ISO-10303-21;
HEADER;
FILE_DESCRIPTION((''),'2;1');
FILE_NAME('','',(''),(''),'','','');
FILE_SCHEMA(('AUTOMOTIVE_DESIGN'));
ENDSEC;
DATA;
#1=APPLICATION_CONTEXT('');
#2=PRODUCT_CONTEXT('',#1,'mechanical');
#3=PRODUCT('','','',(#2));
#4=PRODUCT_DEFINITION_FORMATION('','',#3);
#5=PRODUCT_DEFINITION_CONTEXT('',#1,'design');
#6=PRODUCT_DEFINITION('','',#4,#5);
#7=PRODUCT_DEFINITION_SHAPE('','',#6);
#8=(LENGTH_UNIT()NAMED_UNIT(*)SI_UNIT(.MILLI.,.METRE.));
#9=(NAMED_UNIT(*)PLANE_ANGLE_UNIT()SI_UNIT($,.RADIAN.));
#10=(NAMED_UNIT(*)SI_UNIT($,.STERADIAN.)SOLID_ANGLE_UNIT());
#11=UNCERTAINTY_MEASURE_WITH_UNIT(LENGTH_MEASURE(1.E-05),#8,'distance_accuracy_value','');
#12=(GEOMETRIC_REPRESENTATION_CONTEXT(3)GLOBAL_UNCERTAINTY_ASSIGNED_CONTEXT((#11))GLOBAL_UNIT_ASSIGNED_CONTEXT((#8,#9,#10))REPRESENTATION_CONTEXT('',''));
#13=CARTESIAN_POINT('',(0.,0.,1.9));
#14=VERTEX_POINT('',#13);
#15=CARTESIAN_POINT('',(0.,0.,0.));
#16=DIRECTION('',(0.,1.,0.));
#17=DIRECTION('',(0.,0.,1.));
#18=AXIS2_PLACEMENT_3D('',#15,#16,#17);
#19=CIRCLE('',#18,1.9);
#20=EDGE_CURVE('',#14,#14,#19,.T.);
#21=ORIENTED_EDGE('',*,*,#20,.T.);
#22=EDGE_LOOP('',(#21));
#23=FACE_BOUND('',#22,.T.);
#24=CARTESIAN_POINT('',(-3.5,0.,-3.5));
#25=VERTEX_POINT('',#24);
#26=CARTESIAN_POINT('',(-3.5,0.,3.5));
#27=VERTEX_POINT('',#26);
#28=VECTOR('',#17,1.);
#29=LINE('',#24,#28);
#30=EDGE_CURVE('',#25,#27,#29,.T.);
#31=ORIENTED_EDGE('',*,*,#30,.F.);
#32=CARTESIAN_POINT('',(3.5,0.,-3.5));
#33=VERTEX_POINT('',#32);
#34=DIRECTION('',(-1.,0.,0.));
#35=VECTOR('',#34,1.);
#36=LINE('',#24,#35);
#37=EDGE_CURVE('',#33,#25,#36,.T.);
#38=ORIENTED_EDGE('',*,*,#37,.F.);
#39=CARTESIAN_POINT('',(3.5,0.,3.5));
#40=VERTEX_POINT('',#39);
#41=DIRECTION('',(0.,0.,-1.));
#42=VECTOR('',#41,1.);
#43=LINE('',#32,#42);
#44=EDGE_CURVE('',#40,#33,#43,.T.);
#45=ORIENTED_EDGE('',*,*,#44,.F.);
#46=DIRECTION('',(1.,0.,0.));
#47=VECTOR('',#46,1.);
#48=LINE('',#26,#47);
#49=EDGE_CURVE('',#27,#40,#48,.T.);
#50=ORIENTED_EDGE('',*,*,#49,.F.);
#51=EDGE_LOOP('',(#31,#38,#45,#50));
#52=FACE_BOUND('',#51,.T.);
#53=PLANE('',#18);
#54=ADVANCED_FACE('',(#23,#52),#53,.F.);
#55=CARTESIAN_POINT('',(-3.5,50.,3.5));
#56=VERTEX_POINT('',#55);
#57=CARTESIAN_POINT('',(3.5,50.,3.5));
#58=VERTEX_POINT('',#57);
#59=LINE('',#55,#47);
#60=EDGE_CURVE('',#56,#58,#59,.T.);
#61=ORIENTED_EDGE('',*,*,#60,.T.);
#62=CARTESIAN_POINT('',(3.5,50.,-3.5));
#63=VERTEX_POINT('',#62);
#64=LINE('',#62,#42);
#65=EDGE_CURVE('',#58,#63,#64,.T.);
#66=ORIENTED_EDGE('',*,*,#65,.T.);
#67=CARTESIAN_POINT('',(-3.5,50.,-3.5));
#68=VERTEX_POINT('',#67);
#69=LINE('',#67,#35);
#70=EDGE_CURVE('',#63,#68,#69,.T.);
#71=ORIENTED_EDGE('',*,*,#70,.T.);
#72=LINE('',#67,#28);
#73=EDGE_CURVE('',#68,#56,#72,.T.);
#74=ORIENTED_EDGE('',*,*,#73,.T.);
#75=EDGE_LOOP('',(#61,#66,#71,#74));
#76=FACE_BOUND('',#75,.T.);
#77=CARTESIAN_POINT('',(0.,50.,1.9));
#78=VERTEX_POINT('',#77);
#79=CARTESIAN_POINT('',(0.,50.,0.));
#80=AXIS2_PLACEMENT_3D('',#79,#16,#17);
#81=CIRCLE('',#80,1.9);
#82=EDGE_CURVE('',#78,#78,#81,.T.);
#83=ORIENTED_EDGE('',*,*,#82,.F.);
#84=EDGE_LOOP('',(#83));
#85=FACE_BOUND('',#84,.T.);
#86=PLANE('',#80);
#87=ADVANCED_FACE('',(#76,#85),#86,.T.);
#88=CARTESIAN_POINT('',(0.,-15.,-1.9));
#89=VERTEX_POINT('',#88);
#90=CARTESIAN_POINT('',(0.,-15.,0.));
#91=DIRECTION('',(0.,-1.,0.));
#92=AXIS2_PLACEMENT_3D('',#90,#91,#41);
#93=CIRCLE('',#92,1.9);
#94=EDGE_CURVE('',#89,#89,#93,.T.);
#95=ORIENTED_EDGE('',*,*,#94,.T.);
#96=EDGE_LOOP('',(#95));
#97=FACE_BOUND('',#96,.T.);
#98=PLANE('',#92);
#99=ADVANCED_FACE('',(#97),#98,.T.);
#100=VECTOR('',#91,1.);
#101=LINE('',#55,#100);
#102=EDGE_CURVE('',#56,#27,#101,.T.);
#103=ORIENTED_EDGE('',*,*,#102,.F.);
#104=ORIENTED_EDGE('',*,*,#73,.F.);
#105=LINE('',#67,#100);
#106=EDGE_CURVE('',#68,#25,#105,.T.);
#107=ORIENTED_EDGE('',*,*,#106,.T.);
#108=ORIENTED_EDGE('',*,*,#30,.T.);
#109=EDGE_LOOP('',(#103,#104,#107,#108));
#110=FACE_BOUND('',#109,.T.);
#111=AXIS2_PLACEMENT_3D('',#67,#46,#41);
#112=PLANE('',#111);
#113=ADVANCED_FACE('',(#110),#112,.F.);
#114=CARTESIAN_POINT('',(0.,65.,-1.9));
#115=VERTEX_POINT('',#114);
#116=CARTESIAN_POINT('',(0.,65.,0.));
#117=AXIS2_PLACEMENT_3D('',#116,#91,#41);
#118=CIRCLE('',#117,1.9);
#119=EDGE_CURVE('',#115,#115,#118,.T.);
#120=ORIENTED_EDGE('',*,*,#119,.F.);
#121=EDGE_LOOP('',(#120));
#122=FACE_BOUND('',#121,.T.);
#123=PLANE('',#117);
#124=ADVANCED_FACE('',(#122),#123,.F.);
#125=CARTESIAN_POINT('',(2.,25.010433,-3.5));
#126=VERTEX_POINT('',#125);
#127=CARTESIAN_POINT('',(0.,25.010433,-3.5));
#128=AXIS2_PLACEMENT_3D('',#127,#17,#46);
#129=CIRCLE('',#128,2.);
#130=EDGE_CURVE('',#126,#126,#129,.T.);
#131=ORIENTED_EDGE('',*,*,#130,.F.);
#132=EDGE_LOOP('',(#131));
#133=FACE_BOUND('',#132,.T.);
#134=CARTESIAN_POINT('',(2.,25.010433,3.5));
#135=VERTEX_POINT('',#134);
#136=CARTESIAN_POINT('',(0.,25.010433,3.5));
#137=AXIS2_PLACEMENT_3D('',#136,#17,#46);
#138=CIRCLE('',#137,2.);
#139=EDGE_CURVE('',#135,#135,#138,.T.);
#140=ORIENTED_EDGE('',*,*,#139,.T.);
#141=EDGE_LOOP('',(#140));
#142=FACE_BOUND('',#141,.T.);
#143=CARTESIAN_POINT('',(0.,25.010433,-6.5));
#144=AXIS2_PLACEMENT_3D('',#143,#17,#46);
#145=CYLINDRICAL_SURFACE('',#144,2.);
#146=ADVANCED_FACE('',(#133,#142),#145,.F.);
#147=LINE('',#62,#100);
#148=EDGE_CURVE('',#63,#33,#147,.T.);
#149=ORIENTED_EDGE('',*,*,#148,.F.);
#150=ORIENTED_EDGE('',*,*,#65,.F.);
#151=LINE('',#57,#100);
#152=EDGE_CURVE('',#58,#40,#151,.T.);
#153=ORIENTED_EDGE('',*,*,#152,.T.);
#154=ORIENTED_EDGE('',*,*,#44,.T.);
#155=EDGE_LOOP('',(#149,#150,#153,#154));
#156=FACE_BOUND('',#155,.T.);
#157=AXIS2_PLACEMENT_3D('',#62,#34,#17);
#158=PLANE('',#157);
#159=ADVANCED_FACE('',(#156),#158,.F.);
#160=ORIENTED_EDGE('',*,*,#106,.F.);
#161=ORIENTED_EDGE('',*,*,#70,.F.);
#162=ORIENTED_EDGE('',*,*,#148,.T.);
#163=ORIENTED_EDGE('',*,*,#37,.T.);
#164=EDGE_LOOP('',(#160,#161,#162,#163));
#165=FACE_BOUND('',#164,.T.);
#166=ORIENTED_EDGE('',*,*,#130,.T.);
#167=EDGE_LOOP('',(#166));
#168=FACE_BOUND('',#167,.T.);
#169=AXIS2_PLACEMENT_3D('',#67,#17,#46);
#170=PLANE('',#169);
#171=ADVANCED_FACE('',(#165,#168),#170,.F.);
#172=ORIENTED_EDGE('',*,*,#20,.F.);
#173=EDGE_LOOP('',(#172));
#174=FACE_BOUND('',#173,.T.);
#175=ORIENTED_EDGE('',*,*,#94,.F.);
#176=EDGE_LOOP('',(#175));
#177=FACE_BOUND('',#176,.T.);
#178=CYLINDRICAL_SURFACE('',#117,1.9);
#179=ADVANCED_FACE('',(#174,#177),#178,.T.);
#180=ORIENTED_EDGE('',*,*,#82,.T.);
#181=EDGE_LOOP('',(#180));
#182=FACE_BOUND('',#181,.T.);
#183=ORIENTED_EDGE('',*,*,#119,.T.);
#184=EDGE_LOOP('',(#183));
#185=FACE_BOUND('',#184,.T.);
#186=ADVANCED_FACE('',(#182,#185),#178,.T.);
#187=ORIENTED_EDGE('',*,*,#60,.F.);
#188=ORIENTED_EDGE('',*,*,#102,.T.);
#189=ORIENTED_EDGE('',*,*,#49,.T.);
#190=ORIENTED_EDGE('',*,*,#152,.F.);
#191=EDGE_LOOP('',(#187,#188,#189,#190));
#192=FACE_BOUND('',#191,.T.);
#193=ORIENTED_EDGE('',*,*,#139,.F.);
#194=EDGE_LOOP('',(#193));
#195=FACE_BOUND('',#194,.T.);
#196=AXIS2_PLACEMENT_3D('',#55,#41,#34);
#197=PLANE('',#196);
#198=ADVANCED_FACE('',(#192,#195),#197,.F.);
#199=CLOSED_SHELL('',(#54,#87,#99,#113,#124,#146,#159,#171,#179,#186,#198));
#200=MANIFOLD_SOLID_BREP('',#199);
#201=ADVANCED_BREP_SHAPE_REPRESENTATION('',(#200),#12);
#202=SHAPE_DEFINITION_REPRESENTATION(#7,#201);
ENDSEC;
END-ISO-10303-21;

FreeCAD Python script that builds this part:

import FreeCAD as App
import Part
import Sketcher
Q = App.Units.Quantity

doc = App.newDocument("Part")
body = doc.addObject("PartDesign::Body", "Body")

# Sketch on XZ plane
sketch1 = doc.addObject("Sketcher::SketchObject", "Sketch")
body.addObject(sketch1)
sketch1.AttachmentSupport = (doc.XZ_Plane, [""])
sketch1.MapMode = "FlatFace"
sketch1.addGeometry([
    Part.LineSegment(App.Vector(-4, -4, 0), App.Vector(-4, 4, 0)),
    Part.LineSegment(App.Vector(-4, 4, 0), App.Vector(4, 4, 0)),
    Part.LineSegment(App.Vector(4, 4, 0), App.Vector(4, -4, 0)),
    Part.LineSegment(App.Vector(4, -4, 0), App.Vector(-4, -4, 0)),
], False)
sketch1.addConstraint([
    Sketcher.Constraint("Coincident", 0, 2, 1, 1),
    Sketcher.Constraint("Coincident", 1, 2, 2, 1),
    Sketcher.Constraint("Coincident", 2, 2, 3, 1),
    Sketcher.Constraint("Coincident", 3, 2, 0, 1),
    Sketcher.Constraint("Vertical", 0),
    Sketcher.Constraint("Horizontal", 1),
    Sketcher.Constraint("Vertical", 2),
    Sketcher.Constraint("Horizontal", 3),
    Sketcher.Constraint("Symmetric", 0, 2, 2, 2, -1, 1),
    Sketcher.Constraint("Equal", 3, 0),
    Sketcher.Constraint("DistanceX", 1, 1, 1, 2, Q("7 mm")),
])
pad1 = doc.addObject("PartDesign::Pad", "Pad")
body.addObject(pad1)
pad1.Profile = sketch1
pad1.Length = 50
pad1.Reversed = True

# Sketch on XZ plane
sketch2 = doc.addObject("Sketcher::SketchObject", "Sketch001")
body.addObject(sketch2)
sketch2.AttachmentSupport = (doc.XZ_Plane, [""])
sketch2.MapMode = "FlatFace"
sketch2.addGeometry(Part.Circle(App.Vector(0, 0, 0), App.Vector(0, 0, 1), 1.9), False)
sketch2.addConstraint([
    Sketcher.Constraint("Coincident", 0, 3, -1, 1),
    Sketcher.Constraint("Diameter", 0, Q("3.8 mm")),
])
pad2 = doc.addObject("PartDesign::Pad", "Pad001")
body.addObject(pad2)
pad2.Profile = sketch2
pad2.Type = "TwoLengths"
pad2.Length = 15
pad2.Length2 = 65

# Sketch on XY plane
sketch3 = doc.addObject("Sketcher::SketchObject", "Sketch002")
body.addObject(sketch3)
sketch3.AttachmentSupport = (doc.XY_Plane, [""])
sketch3.MapMode = "FlatFace"
sketch3.AttachmentOffset = App.Placement(App.Vector(0, 0, 3.5), App.Rotation())
sketch3.addGeometry(Part.Circle(App.Vector(0, 25, 0), App.Vector(0, 0, 1), 2), False)
sketch3.addConstraint([
    Sketcher.Constraint("PointOnObject", 0, 3, -2),
    Sketcher.Constraint("Diameter", 0, Q("4 mm")),
    Sketcher.Constraint("DistanceY", -1, 1, 0, 3, Q("25.010433 mm")),
])
pocket1 = doc.addObject("PartDesign::Pocket", "Pocket")
body.addObject(pocket1)
pocket1.Profile = sketch3
pocket1.Length = 10

doc.recompute()
